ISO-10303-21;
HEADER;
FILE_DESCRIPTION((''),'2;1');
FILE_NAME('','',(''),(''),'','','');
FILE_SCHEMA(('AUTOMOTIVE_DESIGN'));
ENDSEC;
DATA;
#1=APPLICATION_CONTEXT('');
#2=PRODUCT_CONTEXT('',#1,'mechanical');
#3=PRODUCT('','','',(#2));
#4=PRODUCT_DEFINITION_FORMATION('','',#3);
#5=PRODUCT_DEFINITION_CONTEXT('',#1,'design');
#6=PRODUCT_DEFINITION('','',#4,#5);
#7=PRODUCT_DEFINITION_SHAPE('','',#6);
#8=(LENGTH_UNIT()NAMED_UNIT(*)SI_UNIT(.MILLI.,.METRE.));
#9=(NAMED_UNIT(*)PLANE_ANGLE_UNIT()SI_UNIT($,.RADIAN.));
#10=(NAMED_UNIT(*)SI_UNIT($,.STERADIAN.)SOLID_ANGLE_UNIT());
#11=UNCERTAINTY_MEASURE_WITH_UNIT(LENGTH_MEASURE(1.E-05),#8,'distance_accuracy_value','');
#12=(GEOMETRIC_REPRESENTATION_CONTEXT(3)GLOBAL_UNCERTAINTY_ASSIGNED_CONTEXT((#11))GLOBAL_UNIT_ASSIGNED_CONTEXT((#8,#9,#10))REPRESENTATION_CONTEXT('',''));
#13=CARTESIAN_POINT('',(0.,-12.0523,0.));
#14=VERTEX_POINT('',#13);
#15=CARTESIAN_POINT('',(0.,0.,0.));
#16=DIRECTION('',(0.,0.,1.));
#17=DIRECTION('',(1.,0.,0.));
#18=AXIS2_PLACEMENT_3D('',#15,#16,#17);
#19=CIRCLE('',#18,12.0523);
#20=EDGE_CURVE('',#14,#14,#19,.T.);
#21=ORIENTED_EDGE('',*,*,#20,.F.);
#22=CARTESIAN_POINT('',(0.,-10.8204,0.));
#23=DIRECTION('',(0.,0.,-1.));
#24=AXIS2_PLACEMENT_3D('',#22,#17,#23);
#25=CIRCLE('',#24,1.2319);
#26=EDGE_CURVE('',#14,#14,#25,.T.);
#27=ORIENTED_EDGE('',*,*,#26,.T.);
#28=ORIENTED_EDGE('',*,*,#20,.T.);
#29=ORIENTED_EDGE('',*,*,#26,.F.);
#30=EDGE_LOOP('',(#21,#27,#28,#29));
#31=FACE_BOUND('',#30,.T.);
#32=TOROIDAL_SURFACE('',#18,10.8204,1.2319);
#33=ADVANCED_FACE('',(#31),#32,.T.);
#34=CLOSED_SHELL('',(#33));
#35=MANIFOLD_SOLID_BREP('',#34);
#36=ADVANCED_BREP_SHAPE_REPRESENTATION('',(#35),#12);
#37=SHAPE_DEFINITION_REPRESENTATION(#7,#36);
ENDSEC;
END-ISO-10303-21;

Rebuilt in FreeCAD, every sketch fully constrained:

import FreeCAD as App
import Part
import Sketcher

V = App.Vector
Q = App.Units.Quantity

doc = App.newDocument("Part")
body = doc.addObject("PartDesign::Body", "Body")

# Sketch on YZ plane
sketch1 = body.newObject("Sketcher::SketchObject", "Sketch")
sketch1.AttachmentSupport = (doc.getObject("YZ_Plane"), [""])
sketch1.MapMode = "FlatFace"
sketch1.addGeometry(Part.Circle(V(-10.8, 0, 0), V(0, 0, 1), 1.2), False)
sketch1.addConstraint(Sketcher.Constraint("PointOnObject", 0, 3, -1))
sketch1.addConstraint(Sketcher.Constraint("Diameter", 0, Q("0.097 in")))
sketch1.addConstraint(Sketcher.Constraint("DistanceX", 0, 3, -1, 1, Q("0.426 in")))

# Sketch on XY plane
sketch2 = body.newObject("Sketcher::SketchObject", "Sketch001")
sketch2.AttachmentSupport = (doc.getObject("XY_Plane"), [""])
sketch2.MapMode = "FlatFace"
sketch2.addGeometry(Part.Circle(V(0, 0, 0), V(0, 0, 1), 11), False)
sketch2.addConstraint(Sketcher.Constraint("Coincident", 0, 3, -1, 1))
sketch2.addConstraint(Sketcher.Constraint("Diameter", 0, Q("0.852 in")))
doc.recompute()

additivepipe = body.newObject("PartDesign::AdditivePipe", "AdditivePipe")
additivepipe.Profile = sketch1
additivepipe.Spine = (sketch2, ["Edge1"])

doc.recompute()
